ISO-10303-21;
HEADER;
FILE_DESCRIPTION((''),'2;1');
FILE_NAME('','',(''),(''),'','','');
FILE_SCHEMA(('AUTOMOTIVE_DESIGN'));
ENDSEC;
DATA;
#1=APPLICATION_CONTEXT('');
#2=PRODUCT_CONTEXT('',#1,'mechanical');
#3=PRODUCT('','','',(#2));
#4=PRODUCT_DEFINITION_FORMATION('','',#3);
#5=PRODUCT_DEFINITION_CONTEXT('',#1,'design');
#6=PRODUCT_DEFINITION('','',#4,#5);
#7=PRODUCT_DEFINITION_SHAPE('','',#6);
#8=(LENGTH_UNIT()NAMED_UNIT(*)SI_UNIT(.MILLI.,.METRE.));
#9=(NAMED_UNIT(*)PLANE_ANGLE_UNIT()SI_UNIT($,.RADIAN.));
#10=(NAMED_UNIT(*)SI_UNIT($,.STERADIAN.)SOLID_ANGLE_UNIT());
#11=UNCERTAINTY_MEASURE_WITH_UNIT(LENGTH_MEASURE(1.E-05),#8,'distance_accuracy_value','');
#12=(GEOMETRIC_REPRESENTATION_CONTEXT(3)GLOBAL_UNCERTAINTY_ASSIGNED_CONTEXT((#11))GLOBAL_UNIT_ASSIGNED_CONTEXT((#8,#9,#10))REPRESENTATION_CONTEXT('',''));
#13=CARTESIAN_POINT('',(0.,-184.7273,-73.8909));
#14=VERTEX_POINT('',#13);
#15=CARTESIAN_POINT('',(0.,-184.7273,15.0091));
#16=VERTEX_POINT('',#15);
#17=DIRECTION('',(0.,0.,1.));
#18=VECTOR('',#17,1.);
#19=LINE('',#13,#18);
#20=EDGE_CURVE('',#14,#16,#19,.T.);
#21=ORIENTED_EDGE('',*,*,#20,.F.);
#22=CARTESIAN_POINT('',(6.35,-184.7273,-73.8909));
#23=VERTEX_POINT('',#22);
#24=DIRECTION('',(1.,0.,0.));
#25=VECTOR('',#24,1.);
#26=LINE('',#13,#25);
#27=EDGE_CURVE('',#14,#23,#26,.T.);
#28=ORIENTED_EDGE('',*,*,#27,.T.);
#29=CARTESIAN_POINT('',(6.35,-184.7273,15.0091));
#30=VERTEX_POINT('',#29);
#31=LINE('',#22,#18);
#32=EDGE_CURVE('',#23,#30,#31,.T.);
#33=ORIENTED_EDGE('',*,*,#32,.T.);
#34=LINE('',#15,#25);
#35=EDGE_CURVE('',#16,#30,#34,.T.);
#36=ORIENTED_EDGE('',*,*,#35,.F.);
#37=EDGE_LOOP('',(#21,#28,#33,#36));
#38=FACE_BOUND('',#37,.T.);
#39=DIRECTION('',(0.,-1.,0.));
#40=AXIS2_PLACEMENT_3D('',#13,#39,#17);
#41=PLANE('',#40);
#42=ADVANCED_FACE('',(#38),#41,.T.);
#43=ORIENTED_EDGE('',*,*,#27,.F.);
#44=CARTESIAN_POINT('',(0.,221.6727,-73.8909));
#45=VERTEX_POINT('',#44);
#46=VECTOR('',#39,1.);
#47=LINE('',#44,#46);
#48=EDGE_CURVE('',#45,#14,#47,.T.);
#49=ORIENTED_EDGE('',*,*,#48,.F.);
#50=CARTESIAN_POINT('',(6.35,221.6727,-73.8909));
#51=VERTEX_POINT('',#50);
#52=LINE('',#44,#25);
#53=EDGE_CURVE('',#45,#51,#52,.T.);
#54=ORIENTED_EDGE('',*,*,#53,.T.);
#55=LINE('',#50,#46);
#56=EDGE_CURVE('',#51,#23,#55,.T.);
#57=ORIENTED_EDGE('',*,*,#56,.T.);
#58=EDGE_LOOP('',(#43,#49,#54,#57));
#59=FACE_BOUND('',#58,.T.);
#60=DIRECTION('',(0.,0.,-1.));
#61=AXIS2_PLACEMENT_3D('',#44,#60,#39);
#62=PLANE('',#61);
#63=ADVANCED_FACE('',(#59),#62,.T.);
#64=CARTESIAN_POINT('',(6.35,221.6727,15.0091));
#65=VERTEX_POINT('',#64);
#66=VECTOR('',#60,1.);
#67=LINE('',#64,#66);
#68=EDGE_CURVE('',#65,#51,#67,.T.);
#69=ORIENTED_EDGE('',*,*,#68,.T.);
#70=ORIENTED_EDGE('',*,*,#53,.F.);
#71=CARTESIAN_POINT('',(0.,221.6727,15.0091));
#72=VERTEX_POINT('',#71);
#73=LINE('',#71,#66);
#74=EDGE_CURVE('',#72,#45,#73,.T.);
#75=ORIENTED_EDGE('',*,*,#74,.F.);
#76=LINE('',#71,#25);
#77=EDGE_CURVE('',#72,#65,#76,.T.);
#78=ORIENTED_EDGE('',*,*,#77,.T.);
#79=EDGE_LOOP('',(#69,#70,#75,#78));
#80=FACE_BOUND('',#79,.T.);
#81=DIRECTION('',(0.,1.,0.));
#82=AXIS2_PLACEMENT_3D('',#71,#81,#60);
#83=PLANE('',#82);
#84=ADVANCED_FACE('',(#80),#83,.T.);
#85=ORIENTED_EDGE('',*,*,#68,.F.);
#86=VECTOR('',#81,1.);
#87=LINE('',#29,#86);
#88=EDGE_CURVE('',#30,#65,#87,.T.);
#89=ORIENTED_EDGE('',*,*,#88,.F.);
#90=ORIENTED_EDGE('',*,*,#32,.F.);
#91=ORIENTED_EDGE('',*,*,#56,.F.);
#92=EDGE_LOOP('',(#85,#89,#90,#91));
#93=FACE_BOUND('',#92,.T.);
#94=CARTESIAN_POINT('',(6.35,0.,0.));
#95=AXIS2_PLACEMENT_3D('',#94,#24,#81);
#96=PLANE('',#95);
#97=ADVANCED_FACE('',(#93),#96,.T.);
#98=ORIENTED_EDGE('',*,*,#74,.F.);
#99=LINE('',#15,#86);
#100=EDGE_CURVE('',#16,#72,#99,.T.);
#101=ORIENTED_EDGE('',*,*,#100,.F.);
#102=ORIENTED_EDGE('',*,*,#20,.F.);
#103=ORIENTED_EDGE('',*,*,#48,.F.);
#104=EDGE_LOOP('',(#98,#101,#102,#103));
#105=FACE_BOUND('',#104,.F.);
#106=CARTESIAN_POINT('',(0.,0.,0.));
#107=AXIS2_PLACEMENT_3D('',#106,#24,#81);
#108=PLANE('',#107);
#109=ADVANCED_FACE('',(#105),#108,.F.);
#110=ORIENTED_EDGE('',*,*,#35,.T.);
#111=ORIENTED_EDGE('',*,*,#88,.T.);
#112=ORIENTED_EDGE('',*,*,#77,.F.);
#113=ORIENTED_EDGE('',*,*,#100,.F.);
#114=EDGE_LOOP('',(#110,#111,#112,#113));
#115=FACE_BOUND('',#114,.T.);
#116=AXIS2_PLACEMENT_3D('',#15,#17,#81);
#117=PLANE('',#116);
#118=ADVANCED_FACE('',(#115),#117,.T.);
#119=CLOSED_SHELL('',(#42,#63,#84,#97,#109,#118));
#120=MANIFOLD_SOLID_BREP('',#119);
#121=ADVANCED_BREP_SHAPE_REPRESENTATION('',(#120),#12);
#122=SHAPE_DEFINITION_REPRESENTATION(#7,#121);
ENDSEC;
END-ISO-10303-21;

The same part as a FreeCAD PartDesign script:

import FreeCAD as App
import Part
import Sketcher

V = App.Vector
Q = App.Units.Quantity


def add_polygon(sketch, points):
    """Adds a closed chain of lines whose ends are joined by coincident constraints."""
    first, n = sketch.GeometryCount, len(points)
    for a, b in zip(points, points[1:] + points[:1]):
        sketch.addGeometry(Part.LineSegment(App.Vector(*a, 0), App.Vector(*b, 0)), False)
    for i in range(n):
        sketch.addConstraint(Sketcher.Constraint("Coincident", first + i, 2, first + (i + 1) % n, 1))

doc = App.newDocument("Part")
params = doc.addObject("Spreadsheet::Sheet", "Params")
for row, (alias, value) in enumerate([
    ("sketch1_width", "16 in"),
    ("sketch1_height", "3.5 in"),
    ("pad1_length", "0.25 in"),
], start=1):
    params.set(f"A{row}", alias)
    params.set(f"B{row}", "=" + value)
    params.setAlias(f"B{row}", alias)

body = doc.addObject("PartDesign::Body", "Body")

# Sketch on YZ plane
sketch1 = doc.addObject("Sketcher::SketchObject", "Sketch")
body.addObject(sketch1)
sketch1.AttachmentSupport = (doc.YZ_Plane, [""])
sketch1.MapMode = "FlatFace"
add_polygon(sketch1, [(222, 15), (-185, 15), (-185, -74), (222, -74)])  # lines 0-3
sketch1.addConstraint(Sketcher.Constraint("Horizontal", 0))
sketch1.addConstraint(Sketcher.Constraint("Vertical", 1))
sketch1.addConstraint(Sketcher.Constraint("Horizontal", 2))
sketch1.addConstraint(Sketcher.Constraint("Vertical", 3))
sketch1.addConstraint(Sketcher.Constraint("DistanceX", 0, 2, 0, 1, Q("16 in")))
sketch1.addConstraint(Sketcher.Constraint("DistanceY", 1, 2, 1, 1, Q("3.5 in")))
sketch1.addConstraint(Sketcher.Constraint("DistanceY", -1, 1, 0, 2, Q("0.5909 in")))
sketch1.addConstraint(Sketcher.Constraint("DistanceX", 0, 2, -1, 1, Q("184.7273 mm")))
sketch1.setExpression("Constraints[8]", "Params.sketch1_width")
sketch1.setExpression("Constraints[9]", "Params.sketch1_height")
pad1 = doc.addObject("PartDesign::Pad", "Pad")
body.addObject(pad1)
pad1.Profile = sketch1
pad1.setExpression("Length", "Params.pad1_length")

doc.recompute()
